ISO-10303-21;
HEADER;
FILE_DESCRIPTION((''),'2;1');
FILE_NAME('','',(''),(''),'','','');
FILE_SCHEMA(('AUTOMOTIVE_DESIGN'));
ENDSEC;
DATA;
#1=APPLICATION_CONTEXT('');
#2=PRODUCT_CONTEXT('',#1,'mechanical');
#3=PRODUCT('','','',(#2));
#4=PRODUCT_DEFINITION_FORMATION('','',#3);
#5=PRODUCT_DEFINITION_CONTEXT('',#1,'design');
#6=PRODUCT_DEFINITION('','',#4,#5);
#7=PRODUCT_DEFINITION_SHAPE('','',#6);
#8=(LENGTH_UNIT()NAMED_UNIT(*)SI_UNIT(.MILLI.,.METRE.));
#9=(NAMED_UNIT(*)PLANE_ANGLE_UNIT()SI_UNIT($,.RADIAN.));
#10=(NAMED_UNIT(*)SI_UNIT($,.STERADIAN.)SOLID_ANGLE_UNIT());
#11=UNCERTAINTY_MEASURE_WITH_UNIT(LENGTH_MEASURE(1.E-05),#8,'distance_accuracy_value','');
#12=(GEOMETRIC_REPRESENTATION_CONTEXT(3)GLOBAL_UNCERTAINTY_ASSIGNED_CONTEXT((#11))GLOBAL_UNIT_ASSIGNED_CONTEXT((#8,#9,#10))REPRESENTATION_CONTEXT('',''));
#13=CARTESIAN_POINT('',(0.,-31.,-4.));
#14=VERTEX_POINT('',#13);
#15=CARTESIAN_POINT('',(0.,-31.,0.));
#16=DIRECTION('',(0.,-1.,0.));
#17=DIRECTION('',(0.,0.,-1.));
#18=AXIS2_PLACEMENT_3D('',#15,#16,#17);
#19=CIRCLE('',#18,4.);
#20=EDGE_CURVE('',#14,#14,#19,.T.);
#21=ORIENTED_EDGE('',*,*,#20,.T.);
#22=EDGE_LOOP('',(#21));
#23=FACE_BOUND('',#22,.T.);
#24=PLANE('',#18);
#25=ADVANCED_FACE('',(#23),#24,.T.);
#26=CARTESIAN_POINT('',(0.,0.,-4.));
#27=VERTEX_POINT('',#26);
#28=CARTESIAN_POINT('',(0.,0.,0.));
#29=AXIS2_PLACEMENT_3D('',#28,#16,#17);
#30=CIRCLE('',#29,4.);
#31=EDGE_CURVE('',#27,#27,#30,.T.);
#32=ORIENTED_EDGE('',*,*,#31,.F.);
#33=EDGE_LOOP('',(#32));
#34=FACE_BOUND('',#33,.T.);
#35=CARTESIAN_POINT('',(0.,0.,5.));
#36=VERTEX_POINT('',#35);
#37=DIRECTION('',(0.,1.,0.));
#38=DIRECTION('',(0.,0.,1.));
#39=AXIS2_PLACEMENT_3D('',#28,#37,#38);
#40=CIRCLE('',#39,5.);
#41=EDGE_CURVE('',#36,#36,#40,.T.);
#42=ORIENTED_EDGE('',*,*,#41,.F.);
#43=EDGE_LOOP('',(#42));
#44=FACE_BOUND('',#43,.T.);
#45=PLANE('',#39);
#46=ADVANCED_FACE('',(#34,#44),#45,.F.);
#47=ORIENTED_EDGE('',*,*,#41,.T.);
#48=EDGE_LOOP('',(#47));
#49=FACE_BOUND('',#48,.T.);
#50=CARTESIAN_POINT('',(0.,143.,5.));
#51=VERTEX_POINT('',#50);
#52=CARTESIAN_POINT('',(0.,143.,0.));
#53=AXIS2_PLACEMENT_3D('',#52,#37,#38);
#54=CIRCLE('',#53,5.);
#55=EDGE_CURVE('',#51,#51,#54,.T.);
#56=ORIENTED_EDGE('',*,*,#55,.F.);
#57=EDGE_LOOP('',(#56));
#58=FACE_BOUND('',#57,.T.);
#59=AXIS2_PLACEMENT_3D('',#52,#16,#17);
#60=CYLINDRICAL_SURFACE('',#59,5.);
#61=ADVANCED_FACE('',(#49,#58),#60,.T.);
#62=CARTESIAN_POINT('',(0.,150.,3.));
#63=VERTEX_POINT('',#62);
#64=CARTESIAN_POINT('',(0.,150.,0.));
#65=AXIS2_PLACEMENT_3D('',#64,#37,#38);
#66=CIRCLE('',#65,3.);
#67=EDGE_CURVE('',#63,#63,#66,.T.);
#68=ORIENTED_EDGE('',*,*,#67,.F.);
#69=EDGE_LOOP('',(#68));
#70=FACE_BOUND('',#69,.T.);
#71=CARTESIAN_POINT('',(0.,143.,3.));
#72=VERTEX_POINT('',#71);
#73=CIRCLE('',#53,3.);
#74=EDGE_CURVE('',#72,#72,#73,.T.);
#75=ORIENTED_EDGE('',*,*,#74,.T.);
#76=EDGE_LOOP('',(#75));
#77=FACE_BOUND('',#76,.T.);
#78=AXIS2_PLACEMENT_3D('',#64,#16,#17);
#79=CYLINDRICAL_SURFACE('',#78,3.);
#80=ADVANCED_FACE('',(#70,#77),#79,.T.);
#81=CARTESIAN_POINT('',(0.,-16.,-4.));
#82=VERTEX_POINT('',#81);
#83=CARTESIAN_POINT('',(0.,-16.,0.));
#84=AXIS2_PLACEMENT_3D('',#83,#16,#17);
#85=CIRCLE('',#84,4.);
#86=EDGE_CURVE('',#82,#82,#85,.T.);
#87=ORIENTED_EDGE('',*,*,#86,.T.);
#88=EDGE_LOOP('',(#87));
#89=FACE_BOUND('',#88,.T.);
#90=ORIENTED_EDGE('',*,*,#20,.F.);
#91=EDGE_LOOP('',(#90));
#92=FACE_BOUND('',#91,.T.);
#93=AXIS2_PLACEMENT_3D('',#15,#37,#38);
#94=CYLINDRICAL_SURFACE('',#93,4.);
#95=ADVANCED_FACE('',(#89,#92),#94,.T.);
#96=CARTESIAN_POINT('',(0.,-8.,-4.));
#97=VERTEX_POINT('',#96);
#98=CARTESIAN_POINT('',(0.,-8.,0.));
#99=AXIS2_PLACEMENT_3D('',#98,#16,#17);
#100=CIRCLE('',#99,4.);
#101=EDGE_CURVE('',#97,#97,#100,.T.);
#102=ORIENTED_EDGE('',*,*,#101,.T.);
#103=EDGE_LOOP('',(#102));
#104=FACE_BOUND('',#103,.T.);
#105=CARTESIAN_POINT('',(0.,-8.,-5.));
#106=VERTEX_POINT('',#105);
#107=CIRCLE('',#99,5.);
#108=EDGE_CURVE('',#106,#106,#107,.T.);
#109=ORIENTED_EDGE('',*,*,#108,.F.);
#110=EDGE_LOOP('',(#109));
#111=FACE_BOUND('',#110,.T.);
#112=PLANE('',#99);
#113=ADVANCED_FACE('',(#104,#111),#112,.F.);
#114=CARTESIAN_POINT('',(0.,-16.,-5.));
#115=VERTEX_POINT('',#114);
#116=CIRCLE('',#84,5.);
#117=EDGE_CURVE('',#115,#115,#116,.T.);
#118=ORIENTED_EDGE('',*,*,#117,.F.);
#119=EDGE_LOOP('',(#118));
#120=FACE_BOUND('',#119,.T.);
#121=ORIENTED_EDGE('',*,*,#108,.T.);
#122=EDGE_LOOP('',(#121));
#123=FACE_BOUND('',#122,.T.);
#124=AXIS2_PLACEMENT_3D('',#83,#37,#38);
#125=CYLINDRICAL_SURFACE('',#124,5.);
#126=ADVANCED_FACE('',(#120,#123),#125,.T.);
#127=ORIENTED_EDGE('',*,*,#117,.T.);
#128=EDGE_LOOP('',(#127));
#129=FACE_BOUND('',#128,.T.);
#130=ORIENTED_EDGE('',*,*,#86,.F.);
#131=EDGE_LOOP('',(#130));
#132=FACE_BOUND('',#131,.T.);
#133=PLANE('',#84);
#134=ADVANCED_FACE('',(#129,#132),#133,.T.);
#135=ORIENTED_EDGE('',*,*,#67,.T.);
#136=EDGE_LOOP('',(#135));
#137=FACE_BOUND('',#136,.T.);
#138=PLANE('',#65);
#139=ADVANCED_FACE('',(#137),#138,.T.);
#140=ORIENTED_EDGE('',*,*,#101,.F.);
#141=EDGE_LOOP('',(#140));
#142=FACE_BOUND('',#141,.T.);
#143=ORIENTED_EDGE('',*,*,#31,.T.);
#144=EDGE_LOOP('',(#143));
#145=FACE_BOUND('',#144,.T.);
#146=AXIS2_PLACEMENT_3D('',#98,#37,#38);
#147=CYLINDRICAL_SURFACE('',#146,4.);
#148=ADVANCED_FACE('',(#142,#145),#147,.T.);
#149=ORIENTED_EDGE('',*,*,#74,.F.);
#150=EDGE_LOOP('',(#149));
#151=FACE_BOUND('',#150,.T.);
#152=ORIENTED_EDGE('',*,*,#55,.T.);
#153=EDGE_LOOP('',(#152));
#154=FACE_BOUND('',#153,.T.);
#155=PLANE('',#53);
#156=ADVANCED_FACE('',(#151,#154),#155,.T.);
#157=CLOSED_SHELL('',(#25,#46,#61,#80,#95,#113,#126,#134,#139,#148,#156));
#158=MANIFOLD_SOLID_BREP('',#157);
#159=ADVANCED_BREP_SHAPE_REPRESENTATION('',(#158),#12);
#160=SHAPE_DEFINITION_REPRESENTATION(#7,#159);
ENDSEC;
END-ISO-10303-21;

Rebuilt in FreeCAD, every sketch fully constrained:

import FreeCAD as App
import Part
import Sketcher

V = App.Vector

doc = App.newDocument("Part")
params = doc.addObject("Spreadsheet::Sheet", "Params")
for row, (alias, value) in enumerate([
    ("sketch1_diameter", "10 mm"),
    ("pad1_length", "143 mm"),
    ("sketch2_diameter", "8 mm"),
    ("pad2_length", "8 mm"),
    ("sketch3_diameter", "10 mm"),
    ("pad3_length", "8 mm"),
    ("sketch4_diameter", "8 mm"),
    ("pad4_length", "15 mm"),
    ("sketch5_diameter", "6 mm"),
    ("pad5_length", "7 mm"),
], start=1):
    params.set(f"A{row}", alias)
    params.set(f"B{row}", "=" + value)
    params.setAlias(f"B{row}", alias)

body = doc.addObject("PartDesign::Body", "Body")

# Sketch on XZ plane
sketch1 = body.newObject("Sketcher::SketchObject", "Sketch")
sketch1.AttachmentSupport = (doc.getObject("XZ_Plane"), [""])
sketch1.MapMode = "FlatFace"
sketch1.addGeometry(Part.Circle(V(0, 0, 0), V(0, 0, 1), 5), False)
sketch1.addConstraint([
    Sketcher.Constraint("Coincident", 0, 3, -1, 1),
    Sketcher.Constraint("Diameter", 0, 10.0),
])
sketch1.setExpression("Constraints[1]", "Params.sketch1_diameter")
pad1 = body.newObject("PartDesign::Pad", "Pad")
pad1.Profile = sketch1
pad1.setExpression("Length", "Params.pad1_length")
pad1.Reversed = True

# Sketch on XZ plane
sketch2 = body.newObject("Sketcher::SketchObject", "Sketch001")
sketch2.AttachmentSupport = (doc.getObject("XZ_Plane"), [""])
sketch2.MapMode = "FlatFace"
sketch2.addGeometry(Part.Circle(V(0, 0, 0), V(0, 0, 1), 4), False)
sketch2.addConstraint([
    Sketcher.Constraint("Coincident", 0, 3, -1, 1),
    Sketcher.Constraint("Diameter", 0, 8.0),
])
sketch2.setExpression("Constraints[1]", "Params.sketch2_diameter")
pad2 = body.newObject("PartDesign::Pad", "Pad001")
pad2.Profile = sketch2
pad2.setExpression("Length", "Params.pad2_length")

# Sketch on XZ plane
sketch3 = body.newObject("Sketcher::SketchObject", "Sketch002")
sketch3.AttachmentSupport = (doc.getObject("XZ_Plane"), [""])
sketch3.MapMode = "FlatFace"
sketch3.AttachmentOffset = App.Placement(V(0, 0, 16), App.Rotation())
sketch3.addGeometry(Part.Circle(V(0, 0, 0), V(0, 0, 1), 5), False)
sketch3.addConstraint([
    Sketcher.Constraint("Coincident", 0, 3, -1, 1),
    Sketcher.Constraint("Diameter", 0, 10.0),
])
sketch3.setExpression("Constraints[1]", "Params.sketch3_diameter")
pad3 = body.newObject("PartDesign::Pad", "Pad002")
pad3.Profile = sketch3
pad3.setExpression("Length", "Params.pad3_length")
pad3.Reversed = True

# Sketch on XZ plane
sketch4 = body.newObject("Sketcher::SketchObject", "Sketch003")
sketch4.AttachmentSupport = (doc.getObject("XZ_Plane"), [""])
sketch4.MapMode = "FlatFace"
sketch4.AttachmentOffset = App.Placement(V(0, 0, 16), App.Rotation())
sketch4.addGeometry(Part.Circle(V(0, 0, 0), V(0, 0, 1), 4), False)
sketch4.addConstraint([
    Sketcher.Constraint("Coincident", 0, 3, -1, 1),
    Sketcher.Constraint("Diameter", 0, 8.0),
])
sketch4.setExpression("Constraints[1]", "Params.sketch4_diameter")
pad4 = body.newObject("PartDesign::Pad", "Pad003")
pad4.Profile = sketch4
pad4.setExpression("Length", "Params.pad4_length")

# Sketch on XZ plane
sketch5 = body.newObject("Sketcher::SketchObject", "Sketch004")
sketch5.AttachmentSupport = (doc.getObject("XZ_Plane"), [""])
sketch5.MapMode = "FlatFace"
sketch5.AttachmentOffset = App.Placement(V(0, 0, -143), App.Rotation())
sketch5.addGeometry(Part.Circle(V(0, 0, 0), V(0, 0, 1), 3), False)
sketch5.addConstraint([
    Sketcher.Constraint("Coincident", 0, 3, -1, 1),
    Sketcher.Constraint("Diameter", 0, 6.0),
])
sketch5.setExpression("Constraints[1]", "Params.sketch5_diameter")
pad5 = body.newObject("PartDesign::Pad", "Pad004")
pad5.Profile = sketch5
pad5.setExpression("Length", "Params.pad5_length")
pad5.Reversed = True

doc.recompute()
